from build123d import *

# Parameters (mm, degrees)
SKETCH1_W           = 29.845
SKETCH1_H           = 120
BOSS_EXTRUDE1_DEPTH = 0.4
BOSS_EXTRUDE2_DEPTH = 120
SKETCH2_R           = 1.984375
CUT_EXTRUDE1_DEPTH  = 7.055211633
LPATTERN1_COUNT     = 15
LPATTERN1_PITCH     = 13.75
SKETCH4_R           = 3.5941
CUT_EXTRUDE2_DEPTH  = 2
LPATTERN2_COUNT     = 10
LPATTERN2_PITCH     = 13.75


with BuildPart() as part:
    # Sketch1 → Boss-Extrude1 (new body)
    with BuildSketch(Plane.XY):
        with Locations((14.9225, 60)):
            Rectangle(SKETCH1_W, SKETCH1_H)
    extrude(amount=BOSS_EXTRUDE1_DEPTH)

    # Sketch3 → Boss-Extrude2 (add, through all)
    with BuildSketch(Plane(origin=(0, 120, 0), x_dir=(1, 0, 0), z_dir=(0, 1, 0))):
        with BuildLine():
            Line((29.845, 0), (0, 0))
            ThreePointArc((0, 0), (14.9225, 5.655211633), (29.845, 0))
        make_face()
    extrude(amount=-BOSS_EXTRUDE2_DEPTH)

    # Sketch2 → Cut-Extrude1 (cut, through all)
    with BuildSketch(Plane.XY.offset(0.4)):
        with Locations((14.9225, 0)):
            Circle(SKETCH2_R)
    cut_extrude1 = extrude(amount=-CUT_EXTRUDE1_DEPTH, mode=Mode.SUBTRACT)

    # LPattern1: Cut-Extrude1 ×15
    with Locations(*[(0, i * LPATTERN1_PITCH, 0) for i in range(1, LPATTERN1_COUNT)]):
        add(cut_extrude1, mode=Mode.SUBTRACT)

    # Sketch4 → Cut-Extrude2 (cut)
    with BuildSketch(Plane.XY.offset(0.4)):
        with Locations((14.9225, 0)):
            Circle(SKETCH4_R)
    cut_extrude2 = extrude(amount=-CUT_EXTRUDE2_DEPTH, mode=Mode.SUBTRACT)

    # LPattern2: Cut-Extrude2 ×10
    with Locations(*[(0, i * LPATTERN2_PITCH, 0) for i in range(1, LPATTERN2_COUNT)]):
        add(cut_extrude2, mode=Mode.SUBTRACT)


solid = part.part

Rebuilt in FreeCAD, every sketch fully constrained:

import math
import FreeCAD as App
import Part
import Sketcher
from FreeCAD import Vector


def add_polygon(sketch, points):
    """Adds a closed chain of lines whose ends are joined by coincident constraints."""
    first, n = sketch.GeometryCount, len(points)
    for a, b in zip(points, points[1:] + points[:1]):
        sketch.addGeometry(Part.LineSegment(App.Vector(*a, 0), App.Vector(*b, 0)), False)
    for i in range(n):
        sketch.addConstraint(Sketcher.Constraint("Coincident", first + i, 2, first + (i + 1) % n, 1))

doc = App.newDocument("Part")
body = doc.addObject("PartDesign::Body", "Body")

# Sketch on XY plane
sketch1 = body.newObject("Sketcher::SketchObject", "Sketch")
sketch1.AttachmentSupport = (doc.getObject("XY_Plane"), [""])
sketch1.MapMode = "FlatFace"
add_polygon(sketch1, [(0, 120), (0, 0), (30, 0), (30, 120)])  # lines 0-3
sketch1.addConstraint([
    Sketcher.Constraint("Vertical", 0),
    Sketcher.Constraint("Horizontal", 1),
    Sketcher.Constraint("Vertical", 2),
    Sketcher.Constraint("Horizontal", 3),
    Sketcher.Constraint("Coincident", 0, 2, -1, 1),
    Sketcher.Constraint("DistanceY", 0, 2, 0, 1, 120.0),
    Sketcher.Constraint("DistanceX", 1, 1, 1, 2, 29.845),
])
pad1 = body.newObject("PartDesign::Pad", "Pad")
pad1.Profile = sketch1
pad1.Length = 0.4

# Sketch on XZ plane
sketch2 = body.newObject("Sketcher::SketchObject", "Sketch001")
sketch2.AttachmentSupport = (doc.getObject("XZ_Plane"), [""])
sketch2.MapMode = "FlatFace"
sketch2.AttachmentOffset = App.Placement(Vector(0, 0, -120), App.Rotation())
sketch2.addGeometry([
    Part.LineSegment(Vector(0, 0, 0), Vector(30, 0, 0)),
    Part.ArcOfCircle(Part.Circle(Vector(15, 17, 0), Vector(0, 0, 1), 23), math.radians(-132), math.radians(-48)),
], False)
sketch2.addConstraint([
    Sketcher.Constraint("Coincident", 0, 1, 1, 1),
    Sketcher.Constraint("Coincident", 1, 2, 0, 2),
    Sketcher.Constraint("Horizontal", 0),
    Sketcher.Constraint("Coincident", 0, 1, -1, 1),
    Sketcher.Constraint("DistanceX", 0, 1, 0, 2, 29.845),
    Sketcher.Constraint("Radius", 1, 22.515729),
])
pad2 = body.newObject("PartDesign::Pad", "Pad001")
pad2.Profile = sketch2
pad2.Length = 120

# Sketch on XY plane
sketch3 = body.newObject("Sketcher::SketchObject", "Sketch002")
sketch3.AttachmentSupport = (doc.getObject("XY_Plane"), [""])
sketch3.MapMode = "FlatFace"
sketch3.AttachmentOffset = App.Placement(Vector(0, 0, 0.4), App.Rotation())
sketch3.addGeometry(Part.Circle(Vector(14.9, 0, 0), Vector(0, 0, 1), 2), False)
sketch3.addConstraint([
    Sketcher.Constraint("PointOnObject", 0, 3, -1),
    Sketcher.Constraint("Diameter", 0, 3.96875),
    Sketcher.Constraint("DistanceX", -1, 1, 0, 3, 14.9225),
])
pocket1 = body.newObject("PartDesign::Pocket", "Pocket")
pocket1.Profile = sketch3
pocket1.Type = "ThroughAll"
doc.recompute()

linearpattern = body.newObject("PartDesign::LinearPattern", "LinearPattern")
linearpattern.Originals = [pocket1]
linearpattern.Direction = (doc.getObject("Y_Axis"), [""])
linearpattern.Mode = "offset"
linearpattern.Offset = 13.75
linearpattern.Occurrences = 15
body.Tip = linearpattern

# Sketch on XY plane
sketch4 = body.newObject("Sketcher::SketchObject", "Sketch003")
sketch4.AttachmentSupport = (doc.getObject("XY_Plane"), [""])
sketch4.MapMode = "FlatFace"
sketch4.AttachmentOffset = App.Placement(Vector(0, 0, 0.4), App.Rotation())
sketch4.addGeometry(Part.Circle(Vector(14.9, 0, 0), Vector(0, 0, 1), 3.6), False)
sketch4.addConstraint([
    Sketcher.Constraint("PointOnObject", 0, 3, -1),
    Sketcher.Constraint("Diameter", 0, 7.1882),
    Sketcher.Constraint("DistanceX", -1, 1, 0, 3, 14.9225),
])
pocket2 = body.newObject("PartDesign::Pocket", "Pocket001")
pocket2.Profile = sketch4
pocket2.Length = 2
doc.recompute()

linearpattern2 = body.newObject("PartDesign::LinearPattern", "LinearPattern001")
linearpattern2.Originals = [pocket2]
linearpattern2.Direction = (doc.getObject("Y_Axis"), [""])
linearpattern2.Mode = "offset"
linearpattern2.Offset = 13.75
linearpattern2.Occurrences = 10
body.Tip = linearpattern2

doc.recompute()
